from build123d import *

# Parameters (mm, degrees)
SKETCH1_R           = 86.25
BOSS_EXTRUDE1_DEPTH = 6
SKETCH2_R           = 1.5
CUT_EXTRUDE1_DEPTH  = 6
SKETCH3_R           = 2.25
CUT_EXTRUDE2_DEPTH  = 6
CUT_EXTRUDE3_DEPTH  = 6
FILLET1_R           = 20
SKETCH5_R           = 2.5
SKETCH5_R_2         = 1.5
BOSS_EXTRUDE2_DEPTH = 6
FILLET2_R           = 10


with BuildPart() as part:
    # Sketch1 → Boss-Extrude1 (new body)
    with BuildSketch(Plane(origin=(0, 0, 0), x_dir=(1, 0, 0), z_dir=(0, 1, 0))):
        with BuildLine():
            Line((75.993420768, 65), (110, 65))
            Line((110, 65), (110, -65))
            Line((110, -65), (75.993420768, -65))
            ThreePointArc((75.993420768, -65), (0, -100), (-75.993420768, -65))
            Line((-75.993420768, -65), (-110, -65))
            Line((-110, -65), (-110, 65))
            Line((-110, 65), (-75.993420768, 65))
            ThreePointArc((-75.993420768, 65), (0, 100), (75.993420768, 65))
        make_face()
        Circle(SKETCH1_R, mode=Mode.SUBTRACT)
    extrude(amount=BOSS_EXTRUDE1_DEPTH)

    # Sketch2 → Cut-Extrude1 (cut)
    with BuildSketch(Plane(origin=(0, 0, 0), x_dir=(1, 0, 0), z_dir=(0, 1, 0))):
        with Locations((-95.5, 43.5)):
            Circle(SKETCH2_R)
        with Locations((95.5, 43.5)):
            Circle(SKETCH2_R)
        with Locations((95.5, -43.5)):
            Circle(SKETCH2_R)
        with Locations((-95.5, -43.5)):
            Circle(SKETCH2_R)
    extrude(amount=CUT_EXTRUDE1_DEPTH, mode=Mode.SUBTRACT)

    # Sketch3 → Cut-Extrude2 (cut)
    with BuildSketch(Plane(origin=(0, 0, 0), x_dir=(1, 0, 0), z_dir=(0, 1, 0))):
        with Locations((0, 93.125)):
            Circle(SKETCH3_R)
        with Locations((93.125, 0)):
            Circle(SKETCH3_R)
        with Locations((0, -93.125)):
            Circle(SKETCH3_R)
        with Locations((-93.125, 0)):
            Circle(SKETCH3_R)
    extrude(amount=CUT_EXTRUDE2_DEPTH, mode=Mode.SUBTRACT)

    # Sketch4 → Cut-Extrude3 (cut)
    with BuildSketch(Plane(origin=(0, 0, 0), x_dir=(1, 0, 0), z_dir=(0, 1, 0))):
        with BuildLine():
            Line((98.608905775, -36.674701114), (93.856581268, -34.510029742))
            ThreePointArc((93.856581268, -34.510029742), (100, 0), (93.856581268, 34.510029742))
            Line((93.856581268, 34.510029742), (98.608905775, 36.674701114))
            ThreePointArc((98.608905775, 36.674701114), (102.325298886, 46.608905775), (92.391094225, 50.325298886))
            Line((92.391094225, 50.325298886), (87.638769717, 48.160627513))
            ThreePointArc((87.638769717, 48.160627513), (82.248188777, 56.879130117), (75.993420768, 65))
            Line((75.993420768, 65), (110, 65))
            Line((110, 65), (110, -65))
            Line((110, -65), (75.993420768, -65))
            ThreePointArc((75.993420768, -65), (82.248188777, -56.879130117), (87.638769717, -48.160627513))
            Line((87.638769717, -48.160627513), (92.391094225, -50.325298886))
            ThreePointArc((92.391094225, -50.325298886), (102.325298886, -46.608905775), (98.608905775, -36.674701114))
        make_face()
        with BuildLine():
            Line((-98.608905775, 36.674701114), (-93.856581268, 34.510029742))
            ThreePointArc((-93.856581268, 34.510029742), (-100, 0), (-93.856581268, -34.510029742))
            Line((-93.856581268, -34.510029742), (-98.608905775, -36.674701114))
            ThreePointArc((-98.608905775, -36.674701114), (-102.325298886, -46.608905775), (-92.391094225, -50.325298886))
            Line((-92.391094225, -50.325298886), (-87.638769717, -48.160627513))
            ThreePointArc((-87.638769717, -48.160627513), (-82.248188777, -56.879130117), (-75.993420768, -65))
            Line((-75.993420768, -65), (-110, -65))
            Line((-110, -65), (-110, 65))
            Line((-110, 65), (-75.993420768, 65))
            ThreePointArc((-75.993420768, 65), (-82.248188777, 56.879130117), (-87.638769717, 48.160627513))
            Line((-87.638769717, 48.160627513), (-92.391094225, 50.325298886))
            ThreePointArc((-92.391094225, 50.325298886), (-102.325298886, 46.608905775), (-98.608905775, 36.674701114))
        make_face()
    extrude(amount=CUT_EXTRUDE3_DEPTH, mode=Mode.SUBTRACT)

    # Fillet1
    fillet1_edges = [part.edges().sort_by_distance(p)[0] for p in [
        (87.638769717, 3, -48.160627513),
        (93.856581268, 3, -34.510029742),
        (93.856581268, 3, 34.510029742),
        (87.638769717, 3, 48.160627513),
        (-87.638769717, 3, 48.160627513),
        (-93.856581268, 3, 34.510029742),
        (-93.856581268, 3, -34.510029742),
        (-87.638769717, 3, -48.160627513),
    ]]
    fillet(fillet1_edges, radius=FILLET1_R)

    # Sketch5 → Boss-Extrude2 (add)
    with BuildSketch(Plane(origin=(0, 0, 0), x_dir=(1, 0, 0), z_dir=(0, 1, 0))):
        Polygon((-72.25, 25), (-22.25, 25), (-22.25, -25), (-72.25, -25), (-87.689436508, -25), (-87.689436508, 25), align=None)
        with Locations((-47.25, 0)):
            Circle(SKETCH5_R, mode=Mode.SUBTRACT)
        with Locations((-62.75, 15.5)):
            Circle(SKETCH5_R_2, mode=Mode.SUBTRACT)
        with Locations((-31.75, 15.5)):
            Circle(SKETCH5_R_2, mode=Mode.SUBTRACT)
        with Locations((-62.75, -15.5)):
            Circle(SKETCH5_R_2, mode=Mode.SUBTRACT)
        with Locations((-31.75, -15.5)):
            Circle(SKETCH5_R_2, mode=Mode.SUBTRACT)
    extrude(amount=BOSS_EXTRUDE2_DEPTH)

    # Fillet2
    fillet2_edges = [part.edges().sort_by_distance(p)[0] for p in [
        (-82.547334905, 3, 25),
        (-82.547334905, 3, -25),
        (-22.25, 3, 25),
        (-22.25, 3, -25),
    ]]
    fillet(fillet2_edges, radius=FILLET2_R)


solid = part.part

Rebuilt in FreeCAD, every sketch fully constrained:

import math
import FreeCAD as App
import Part
import Sketcher
Q = App.Units.Quantity


def edges_at(feature, points):
    """Names of the edges that pass closest to the given points."""
    edges = feature.Shape.Edges
    near = lambda p: min(range(len(edges)), key=lambda i: edges[i].distToShape(Part.Vertex(*p))[0])
    return sorted({f"Edge{near(p) + 1}" for p in points})

doc = App.newDocument("Part")
params = doc.addObject("Spreadsheet::Sheet", "Params")
for row, (alias, value) in enumerate([
    ("sketch1_radius", "100 mm"),
    ("sketch1_diameter", "172.5 mm"),
    ("sketch1_height", "130 mm"),
    ("pad1_length", "6 mm"),
    ("sketch2_diameter", "3 mm"),
    ("pocket1_length", "6 mm"),
    ("sketch3_diameter", "4.5 mm"),
    ("pocket2_length", "6 mm"),
    ("sketch4_radius", "100 mm"),
    ("sketch4_radius2", "7.5 mm"),
    ("sketch4_height", "130 mm"),
    ("pocket3_length", "6 mm"),
    ("fillet_radius", "20 mm"),
    ("sketch5_diameter", "3 mm"),
    ("sketch5_diameter2", "5 mm"),
    ("sketch5_height", "50 mm"),
    ("pad2_length", "6 mm"),
    ("fillet2_radius", "10 mm"),
], start=1):
    params.set(f"A{row}", alias)
    params.set(f"B{row}", "=" + value)
    params.setAlias(f"B{row}", alias)

body = doc.addObject("PartDesign::Body", "Body")

# Sketch on XZ plane
sketch1 = doc.addObject("Sketcher::SketchObject", "Sketch")
body.addObject(sketch1)
sketch1.AttachmentSupport = (doc.XZ_Plane, [""])
sketch1.MapMode = "FlatFace"
sketch1.addGeometry(Part.LineSegment(App.Vector(110, -65, 0), App.Vector(76, -65, 0)), False)
sketch1.addGeometry(Part.ArcOfCircle(Part.Circle(App.Vector(0, 0, 0), App.Vector(0, 0, 1), 100), math.radians(-139), math.radians(-41)), False)
sketch1.addGeometry(Part.LineSegment(App.Vector(-76, -65, 0), App.Vector(-110, -65, 0)), False)
sketch1.addGeometry(Part.LineSegment(App.Vector(-110, -65, 0), App.Vector(-110, 65, 0)), False)
sketch1.addGeometry(Part.LineSegment(App.Vector(-110, 65, 0), App.Vector(-76, 65, 0)), False)
sketch1.addGeometry(Part.ArcOfCircle(Part.Circle(App.Vector(0, 0, 0), App.Vector(0, 0, 1), 100), math.radians(41), math.radians(139)), False)
sketch1.addGeometry(Part.LineSegment(App.Vector(76, 65, 0), App.Vector(110, 65, 0)), False)
sketch1.addGeometry(Part.LineSegment(App.Vector(110, 65, 0), App.Vector(110, -65, 0)), False)
sketch1.addGeometry(Part.Circle(App.Vector(0, 0, 0), App.Vector(0, 0, 1), 86), False)
sketch1.addConstraint(Sketcher.Constraint("Coincident", 0, 2, 1, 2))
sketch1.addConstraint(Sketcher.Constraint("Coincident", 1, 1, 2, 1))
sketch1.addConstraint(Sketcher.Constraint("Coincident", 2, 2, 3, 1))
sketch1.addConstraint(Sketcher.Constraint("Coincident", 3, 2, 4, 1))
sketch1.addConstraint(Sketcher.Constraint("Coincident", 4, 2, 5, 2))
sketch1.addConstraint(Sketcher.Constraint("Coincident", 5, 1, 6, 1))
sketch1.addConstraint(Sketcher.Constraint("Coincident", 6, 2, 7, 1))
sketch1.addConstraint(Sketcher.Constraint("Coincident", 7, 2, 0, 1))
sketch1.addConstraint(Sketcher.Constraint("Horizontal", 0))
sketch1.addConstraint(Sketcher.Constraint("Horizontal", 2))
sketch1.addConstraint(Sketcher.Constraint("Vertical", 3))
sketch1.addConstraint(Sketcher.Constraint("Horizontal", 4))
sketch1.addConstraint(Sketcher.Constraint("Horizontal", 6))
sketch1.addConstraint(Sketcher.Constraint("Vertical", 7))
sketch1.addConstraint(Sketcher.Constraint("Coincident", 1, 3, -1, 1))
sketch1.addConstraint(Sketcher.Constraint("Coincident", 5, 3, -1, 1))
sketch1.addConstraint(Sketcher.Constraint("Coincident", 8, 3, -1, 1))
sketch1.addConstraint(Sketcher.Constraint("Equal", 1, 5))
sketch1.addConstraint(Sketcher.Constraint("Symmetric", 2, 2, 6, 2, -1, 1))
sketch1.addConstraint(Sketcher.Constraint("Horizontal", 0, 2, 1, 1))
sketch1.addConstraint(Sketcher.Constraint("Horizontal", 4, 2, 5, 1))
sketch1.addConstraint(Sketcher.Constraint("Radius", 1, Q("100 mm")))
sketch1.addConstraint(Sketcher.Constraint("Diameter", 8, Q("172.5 mm")))
sketch1.addConstraint(Sketcher.Constraint("DistanceY", 3, 1, 3, 2, Q("130 mm")))
sketch1.addConstraint(Sketcher.Constraint("DistanceX", 2, 2, -1, 1, Q("110 mm")))
sketch1.setExpression("Constraints[21]", "Params.sketch1_radius")
sketch1.setExpression("Constraints[22]", "Params.sketch1_diameter")
sketch1.setExpression("Constraints[23]", "Params.sketch1_height")
pad1 = doc.addObject("PartDesign::Pad", "Pad")
body.addObject(pad1)
pad1.Profile = sketch1
pad1.setExpression("Length", "Params.pad1_length")
pad1.Reversed = True

# Sketch on XZ plane
sketch2 = doc.addObject("Sketcher::SketchObject", "Sketch001")
body.addObject(sketch2)
sketch2.AttachmentSupport = (doc.XZ_Plane, [""])
sketch2.MapMode = "FlatFace"
sketch2.addGeometry(Part.Circle(App.Vector(-95.5, -43.5, 0), App.Vector(0, 0, 1), 1.5), False)
sketch2.addGeometry(Part.Circle(App.Vector(95.5, -43.5, 0), App.Vector(0, 0, 1), 1.5), False)
sketch2.addGeometry(Part.Circle(App.Vector(95.5, 43.5, 0), App.Vector(0, 0, 1), 1.5), False)
sketch2.addGeometry(Part.Circle(App.Vector(-95.5, 43.5, 0), App.Vector(0, 0, 1), 1.5), False)
sketch2.addConstraint(Sketcher.Constraint("Equal", 0, 1))
sketch2.addConstraint(Sketcher.Constraint("Equal", 1, 2))
sketch2.addConstraint(Sketcher.Constraint("Equal", 2, 3))
sketch2.addConstraint(Sketcher.Constraint("Symmetric", 0, 3, 2, 3, -1, 1))
sketch2.addConstraint(Sketcher.Constraint("Symmetric", 1, 3, 3, 3, -1, 1))
sketch2.addConstraint(Sketcher.Constraint("Symmetric", 0, 3, 1, 3, -2))
sketch2.addConstraint(Sketcher.Constraint("Diameter", 0, Q("3 mm")))
sketch2.addConstraint(Sketcher.Constraint("DistanceX", 0, 3, 1, 3, Q("191 mm")))
sketch2.addConstraint(Sketcher.Constraint("DistanceY", 1, 3, 2, 3, Q("87 mm")))
sketch2.setExpression("Constraints[6]", "Params.sketch2_diameter")
pocket1 = doc.addObject("PartDesign::Pocket", "Pocket")
body.addObject(pocket1)
pocket1.Profile = sketch2
pocket1.setExpression("Length", "Params.pocket1_length")

# Sketch on XZ plane
sketch3 = doc.addObject("Sketcher::SketchObject", "Sketch002")
body.addObject(sketch3)
sketch3.AttachmentSupport = (doc.XZ_Plane, [""])
sketch3.MapMode = "FlatFace"
sketch3.addGeometry(Part.Circle(App.Vector(0, -93.1, 0), App.Vector(0, 0, 1), 2.2), False)
sketch3.addGeometry(Part.Circle(App.Vector(93.1, 0, 0), App.Vector(0, 0, 1), 2.2), False)
sketch3.addGeometry(Part.Circle(App.Vector(0, 93.1, 0), App.Vector(0, 0, 1), 2.2), False)
sketch3.addGeometry(Part.Circle(App.Vector(-93.1, 0, 0), App.Vector(0, 0, 1), 2.2), False)
sketch3.addConstraint(Sketcher.Constraint("Equal", 0, 1))
sketch3.addConstraint(Sketcher.Constraint("Equal", 1, 2))
sketch3.addConstraint(Sketcher.Constraint("Equal", 2, 3))
sketch3.addConstraint(Sketcher.Constraint("Symmetric", 0, 3, 2, 3, -1, 1))
sketch3.addConstraint(Sketcher.Constraint("Symmetric", 1, 3, 3, 3, -1, 1))
sketch3.addConstraint(Sketcher.Constraint("PointOnObject", 0, 3, -2))
sketch3.addConstraint(Sketcher.Constraint("PointOnObject", 1, 3, -1))
sketch3.addConstraint(Sketcher.Constraint("Diameter", 0, Q("4.5 mm")))
sketch3.addConstraint(Sketcher.Constraint("DistanceY", 0, 3, 2, 3, Q("186.25 mm")))
sketch3.addConstraint(Sketcher.Constraint("DistanceX", 3, 3, 1, 3, Q("186.25 mm")))
sketch3.setExpression("Constraints[7]", "Params.sketch3_diameter")
pocket2 = doc.addObject("PartDesign::Pocket", "Pocket001")
body.addObject(pocket2)
pocket2.Profile = sketch3
pocket2.setExpression("Length", "Params.pocket2_length")

# Sketch on XZ plane
sketch4 = doc.addObject("Sketcher::SketchObject", "Sketch003")
body.addObject(sketch4)
sketch4.AttachmentSupport = (doc.XZ_Plane, [""])
sketch4.MapMode = "FlatFace"
sketch4.addGeometry(Part.LineSegment(App.Vector(94, 35, 0), App.Vector(99, 37, 0)), False)
sketch4.addGeometry(Part.ArcOfCircle(Part.Circle(App.Vector(96, 44, 0), App.Vector(0, 0, 1), 8), math.radians(-66), math.radians(114)), False)
sketch4.addGeometry(Part.LineSegment(App.Vector(92, 50, 0), App.Vector(88, 48, 0)), False)
sketch4.addGeometry(Part.ArcOfCircle(Part.Circle(App.Vector(0, 0, 0), App.Vector(0, 0, 1), 100), math.radians(28.79), math.radians(40.54)), False)
sketch4.addGeometry(Part.LineSegment(App.Vector(76, 65, 0), App.Vector(110, 65, 0)), False)
sketch4.addGeometry(Part.LineSegment(App.Vector(110, 65, 0), App.Vector(110, -65, 0)), False)
sketch4.addGeometry(Part.LineSegment(App.Vector(110, -65, 0), App.Vector(76, -65, 0)), False)
sketch4.addGeometry(Part.ArcOfCircle(Part.Circle(App.Vector(0, 0, 0), App.Vector(0, 0, 1), 100), math.radians(-40.54), math.radians(-28.79)), False)
sketch4.addGeometry(Part.LineSegment(App.Vector(88, -48, 0), App.Vector(92, -50, 0)), False)
sketch4.addGeometry(Part.ArcOfCircle(Part.Circle(App.Vector(96, -44, 0), App.Vector(0, 0, 1), 8), math.radians(-114), math.radians(66)), False)
sketch4.addGeometry(Part.LineSegment(App.Vector(99, -37, 0), App.Vector(94, -35, 0)), False)
sketch4.addGeometry(Part.ArcOfCircle(Part.Circle(App.Vector(0, 0, 0), App.Vector(0, 0, 1), 100), math.radians(-20), math.radians(20)), False)
sketch4.addGeometry(Part.LineSegment(App.Vector(-94, -35, 0), App.Vector(-99, -37, 0)), False)
sketch4.addGeometry(Part.ArcOfCircle(Part.Circle(App.Vector(-96, -44, 0), App.Vector(0, 0, 1), 8), math.radians(114), math.radians(294)), False)
sketch4.addGeometry(Part.LineSegment(App.Vector(-92, -50, 0), App.Vector(-88, -48, 0)), False)
sketch4.addGeometry(Part.ArcOfCircle(Part.Circle(App.Vector(0, 0, 0), App.Vector(0, 0, 1), 100), math.radians(-151.21), math.radians(-139.46)), False)
sketch4.addGeometry(Part.LineSegment(App.Vector(-76, -65, 0), App.Vector(-110, -65, 0)), False)
sketch4.addGeometry(Part.LineSegment(App.Vector(-110, -65, 0), App.Vector(-110, 65, 0)), False)
sketch4.addGeometry(Part.LineSegment(App.Vector(-110, 65, 0), App.Vector(-76, 65, 0)), False)
sketch4.addGeometry(Part.ArcOfCircle(Part.Circle(App.Vector(0, 0, 0), App.Vector(0, 0, 1), 100), math.radians(139.46), math.radians(151.21)), False)
sketch4.addGeometry(Part.LineSegment(App.Vector(-88, 48, 0), App.Vector(-92, 50, 0)), False)
sketch4.addGeometry(Part.ArcOfCircle(Part.Circle(App.Vector(-96, 44, 0), App.Vector(0, 0, 1), 8), math.radians(66), math.radians(246)), False)
sketch4.addGeometry(Part.LineSegment(App.Vector(-99, 37, 0), App.Vector(-94, 35, 0)), False)
sketch4.addGeometry(Part.ArcOfCircle(Part.Circle(App.Vector(0, 0, 0), App.Vector(0, 0, 1), 100), math.radians(160), math.radians(200)), False)
sketch4.addConstraint(Sketcher.Constraint("Tangent", 0, 2, 1, 1))
sketch4.addConstraint(Sketcher.Constraint("Tangent", 1, 2, 2, 1))
sketch4.addConstraint(Sketcher.Constraint("Coincident", 2, 2, 3, 1))
sketch4.addConstraint(Sketcher.Constraint("Coincident", 3, 2, 4, 1))
sketch4.addConstraint(Sketcher.Constraint("Coincident", 4, 2, 5, 1))
sketch4.addConstraint(Sketcher.Constraint("Coincident", 5, 2, 6, 1))
sketch4.addConstraint(Sketcher.Constraint("Coincident", 6, 2, 7, 1))
sketch4.addConstraint(Sketcher.Constraint("Coincident", 7, 2, 8, 1))
sketch4.addConstraint(Sketcher.Constraint("Tangent", 8, 2, 9, 1))
sketch4.addConstraint(Sketcher.Constraint("Tangent", 9, 2, 10, 1))
sketch4.addConstraint(Sketcher.Constraint("Coincident", 10, 2, 11, 1))
sketch4.addConstraint(Sketcher.Constraint("Coincident", 11, 2, 0, 1))
sketch4.addConstraint(Sketcher.Constraint("Tangent", 12, 2, 13, 1))
sketch4.addConstraint(Sketcher.Constraint("Tangent", 13, 2, 14, 1))
sketch4.addConstraint(Sketcher.Constraint("Coincident", 14, 2, 15, 1))
sketch4.addConstraint(Sketcher.Constraint("Coincident", 15, 2, 16, 1))
sketch4.addConstraint(Sketcher.Constraint("Coincident", 16, 2, 17, 1))
sketch4.addConstraint(Sketcher.Constraint("Coincident", 17, 2, 18, 1))
sketch4.addConstraint(Sketcher.Constraint("Coincident", 18, 2, 19, 1))
sketch4.addConstraint(Sketcher.Constraint("Coincident", 19, 2, 20, 1))
sketch4.addConstraint(Sketcher.Constraint("Tangent", 20, 2, 21, 1))
sketch4.addConstraint(Sketcher.Constraint("Tangent", 21, 2, 22, 1))
sketch4.addConstraint(Sketcher.Constraint("Coincident", 22, 2, 23, 1))
sketch4.addConstraint(Sketcher.Constraint("Coincident", 23, 2, 12, 1))
sketch4.addConstraint(Sketcher.Constraint("Horizontal", 4))
sketch4.addConstraint(Sketcher.Constraint("Vertical", 5))
sketch4.addConstraint(Sketcher.Constraint("Horizontal", 6))
sketch4.addConstraint(Sketcher.Constraint("Horizontal", 16))
sketch4.addConstraint(Sketcher.Constraint("Vertical", 17))
sketch4.addConstraint(Sketcher.Constraint("Horizontal", 18))
sketch4.addConstraint(Sketcher.Constraint("Coincident", 3, 3, -1, 1))
sketch4.addConstraint(Sketcher.Constraint("Coincident", 7, 3, -1, 1))
sketch4.addConstraint(Sketcher.Constraint("Coincident", 11, 3, -1, 1))
sketch4.addConstraint(Sketcher.Constraint("Coincident", 15, 3, -1, 1))
sketch4.addConstraint(Sketcher.Constraint("Coincident", 19, 3, -1, 1))
sketch4.addConstraint(Sketcher.Constraint("Coincident", 23, 3, -1, 1))
sketch4.addConstraint(Sketcher.Constraint("Equal", 3, 7))
sketch4.addConstraint(Sketcher.Constraint("Equal", 1, 9))
sketch4.addConstraint(Sketcher.Constraint("Equal", 7, 11))
sketch4.addConstraint(Sketcher.Constraint("Equal", 9, 13))
sketch4.addConstraint(Sketcher.Constraint("Equal", 11, 15))
sketch4.addConstraint(Sketcher.Constraint("Equal", 15, 19))
sketch4.addConstraint(Sketcher.Constraint("Equal", 13, 21))
sketch4.addConstraint(Sketcher.Constraint("Equal", 19, 23))
sketch4.addConstraint(Sketcher.Constraint("Symmetric", 1, 3, 13, 3, -1, 1))
sketch4.addConstraint(Sketcher.Constraint("Symmetric", 9, 3, 21, 3, -1, 1))
sketch4.addConstraint(Sketcher.Constraint("Symmetric", 4, 2, 16, 2, -1, 1))
sketch4.addConstraint(Sketcher.Constraint("Symmetric", 9, 3, 13, 3, -2))
sketch4.addConstraint(Sketcher.Constraint("Parallel", 0, 2))
sketch4.addConstraint(Sketcher.Constraint("Parallel", 8, 10))
sketch4.addConstraint(Sketcher.Constraint("Parallel", 2, 12))
sketch4.addConstraint(Sketcher.Constraint("Parallel", 12, 14))
sketch4.addConstraint(Sketcher.Constraint("Parallel", 10, 20))
sketch4.addConstraint(Sketcher.Constraint("Parallel", 20, 22))
sketch4.addConstraint(Sketcher.Constraint("Horizontal", 9, 2, 12, 2))
sketch4.addConstraint(Sketcher.Constraint("Horizontal", 6, 2, 15, 2))
sketch4.addConstraint(Sketcher.Constraint("Horizontal", 4, 2, 17, 2))
sketch4.addConstraint(Sketcher.Constraint("Equal", 0, 2))
sketch4.addConstraint(Sketcher.Constraint("Radius", 3, Q("100 mm")))
sketch4.addConstraint(Sketcher.Constraint("Radius", 1, Q("7.5 mm")))
sketch4.addConstraint(Sketcher.Constraint("DistanceY", 5, 2, 5, 1, Q("130 mm")))
sketch4.addConstraint(Sketcher.Constraint("DistanceX", -1, 1, 4, 2, Q("110 mm")))
sketch4.addConstraint(Sketcher.Constraint("DistanceY", 9, 3, 1, 3, Q("87 mm")))
sketch4.addConstraint(Sketcher.Constraint("DistanceX", 13, 3, 9, 3, Q("191 mm")))
sketch4.setExpression("Constraints[58]", "Params.sketch4_radius")
sketch4.setExpression("Constraints[59]", "Params.sketch4_radius2")
sketch4.setExpression("Constraints[60]", "Params.sketch4_height")
pocket3 = doc.addObject("PartDesign::Pocket", "Pocket002")
body.addObject(pocket3)
pocket3.Profile = sketch4
pocket3.setExpression("Length", "Params.pocket3_length")
doc.recompute()

fillet = doc.addObject("PartDesign::Fillet", "Fillet")
body.addObject(fillet)
fillet.Base = (pocket3, edges_at(pocket3, [
    (87.639, 3, -48.161),
    (93.857, 3, -34.51),
    (93.857, 3, 34.51),
    (87.639, 3, 48.161),
    (-87.639, 3, 48.161),
    (-93.857, 3, 34.51),
    (-93.857, 3, -34.51),
    (-87.639, 3, -48.161),
]))
fillet.setExpression("Radius", "Params.fillet_radius")

# Sketch on XZ plane
sketch5 = doc.addObject("Sketcher::SketchObject", "Sketch004")
body.addObject(sketch5)
sketch5.AttachmentSupport = (doc.XZ_Plane, [""])
sketch5.MapMode = "FlatFace"
sketch5.addGeometry(Part.LineSegment(App.Vector(-22.2, -25, 0), App.Vector(-87.7, -25, 0)), False)
sketch5.addGeometry(Part.LineSegment(App.Vector(-87.7, -25, 0), App.Vector(-87.7, 25, 0)), False)
sketch5.addGeometry(Part.LineSegment(App.Vector(-87.7, 25, 0), App.Vector(-22.2, 25, 0)), False)
sketch5.addGeometry(Part.LineSegment(App.Vector(-22.2, 25, 0), App.Vector(-22.2, -25, 0)), False)
sketch5.addGeometry(Part.Circle(App.Vector(-31.8, 15.5, 0), App.Vector(0, 0, 1), 1.5), False)
sketch5.addGeometry(Part.Circle(App.Vector(-62.8, 15.5, 0), App.Vector(0, 0, 1), 1.5), False)
sketch5.addGeometry(Part.Circle(App.Vector(-31.8, -15.5, 0), App.Vector(0, 0, 1), 1.5), False)
sketch5.addGeometry(Part.Circle(App.Vector(-47.2, 0, 0), App.Vector(0, 0, 1), 2.5), False)
sketch5.addGeometry(Part.Circle(App.Vector(-62.8, -15.5, 0), App.Vector(0, 0, 1), 1.5), False)
sketch5.addConstraint(Sketcher.Constraint("Coincident", 0, 2, 1, 1))
sketch5.addConstraint(Sketcher.Constraint("Coincident", 1, 2, 2, 1))
sketch5.addConstraint(Sketcher.Constraint("Coincident", 2, 2, 3, 1))
sketch5.addConstraint(Sketcher.Constraint("Coincident", 3, 2, 0, 1))
sketch5.addConstraint(Sketcher.Constraint("Horizontal", 0))
sketch5.addConstraint(Sketcher.Constraint("Vertical", 1))
sketch5.addConstraint(Sketcher.Constraint("Horizontal", 2))
sketch5.addConstraint(Sketcher.Constraint("Vertical", 3))
sketch5.addConstraint(Sketcher.Constraint("Equal", 4, 5))
sketch5.addConstraint(Sketcher.Constraint("Equal", 5, 6))
sketch5.addConstraint(Sketcher.Constraint("Equal", 6, 8))
sketch5.addConstraint(Sketcher.Constraint("Symmetric", 4, 3, 6, 3, -1))
sketch5.addConstraint(Sketcher.Constraint("Symmetric", 5, 3, 8, 3, -1))
sketch5.addConstraint(Sketcher.Constraint("PointOnObject", 7, 3, -1))
sketch5.addConstraint(Sketcher.Constraint("Horizontal", 4, 3, 5, 3))
sketch5.addConstraint(Sketcher.Constraint("Diameter", 4, Q("3 mm")))
sketch5.addConstraint(Sketcher.Constraint("Diameter", 7, Q("5 mm")))
sketch5.addConstraint(Sketcher.Constraint("DistanceY", 1, 1, 1, 2, Q("50 mm")))
sketch5.addConstraint(Sketcher.Constraint("DistanceY", 0, 2, -1, 1, Q("25 mm")))
sketch5.addConstraint(Sketcher.Constraint("DistanceX", 5, 3, 4, 3, Q("31 mm")))
sketch5.addConstraint(Sketcher.Constraint("DistanceY", 6, 3, 4, 3, Q("31 mm")))
sketch5.addConstraint(Sketcher.Constraint("DistanceX", 7, 3, 2, 2, Q("25 mm")))
sketch5.addConstraint(Sketcher.Constraint("DistanceX", 7, 3, 4, 3, Q("15.5 mm")))
sketch5.addConstraint(Sketcher.Constraint("DistanceX", 4, 3, -1, 1, Q("31.75 mm")))
sketch5.addConstraint(Sketcher.Constraint("DistanceX", 0, 2, 0, 1, Q("65.439437 mm")))
sketch5.setExpression("Constraints[15]", "Params.sketch5_diameter")
sketch5.setExpression("Constraints[16]", "Params.sketch5_diameter2")
sketch5.setExpression("Constraints[17]", "Params.sketch5_height")
pad2 = doc.addObject("PartDesign::Pad", "Pad001")
body.addObject(pad2)
pad2.Profile = sketch5
pad2.setExpression("Length", "Params.pad2_length")
pad2.Reversed = True
doc.recompute()

fillet2 = doc.addObject("PartDesign::Fillet", "Fillet001")
body.addObject(fillet2)
fillet2.Base = (pad2, edges_at(pad2, [
    (-82.547, 3, 25),
    (-82.547, 3, -25),
    (-22.25, 3, 25),
    (-22.25, 3, -25),
]))
fillet2.setExpression("Radius", "Params.fillet2_radius")

doc.recompute()
